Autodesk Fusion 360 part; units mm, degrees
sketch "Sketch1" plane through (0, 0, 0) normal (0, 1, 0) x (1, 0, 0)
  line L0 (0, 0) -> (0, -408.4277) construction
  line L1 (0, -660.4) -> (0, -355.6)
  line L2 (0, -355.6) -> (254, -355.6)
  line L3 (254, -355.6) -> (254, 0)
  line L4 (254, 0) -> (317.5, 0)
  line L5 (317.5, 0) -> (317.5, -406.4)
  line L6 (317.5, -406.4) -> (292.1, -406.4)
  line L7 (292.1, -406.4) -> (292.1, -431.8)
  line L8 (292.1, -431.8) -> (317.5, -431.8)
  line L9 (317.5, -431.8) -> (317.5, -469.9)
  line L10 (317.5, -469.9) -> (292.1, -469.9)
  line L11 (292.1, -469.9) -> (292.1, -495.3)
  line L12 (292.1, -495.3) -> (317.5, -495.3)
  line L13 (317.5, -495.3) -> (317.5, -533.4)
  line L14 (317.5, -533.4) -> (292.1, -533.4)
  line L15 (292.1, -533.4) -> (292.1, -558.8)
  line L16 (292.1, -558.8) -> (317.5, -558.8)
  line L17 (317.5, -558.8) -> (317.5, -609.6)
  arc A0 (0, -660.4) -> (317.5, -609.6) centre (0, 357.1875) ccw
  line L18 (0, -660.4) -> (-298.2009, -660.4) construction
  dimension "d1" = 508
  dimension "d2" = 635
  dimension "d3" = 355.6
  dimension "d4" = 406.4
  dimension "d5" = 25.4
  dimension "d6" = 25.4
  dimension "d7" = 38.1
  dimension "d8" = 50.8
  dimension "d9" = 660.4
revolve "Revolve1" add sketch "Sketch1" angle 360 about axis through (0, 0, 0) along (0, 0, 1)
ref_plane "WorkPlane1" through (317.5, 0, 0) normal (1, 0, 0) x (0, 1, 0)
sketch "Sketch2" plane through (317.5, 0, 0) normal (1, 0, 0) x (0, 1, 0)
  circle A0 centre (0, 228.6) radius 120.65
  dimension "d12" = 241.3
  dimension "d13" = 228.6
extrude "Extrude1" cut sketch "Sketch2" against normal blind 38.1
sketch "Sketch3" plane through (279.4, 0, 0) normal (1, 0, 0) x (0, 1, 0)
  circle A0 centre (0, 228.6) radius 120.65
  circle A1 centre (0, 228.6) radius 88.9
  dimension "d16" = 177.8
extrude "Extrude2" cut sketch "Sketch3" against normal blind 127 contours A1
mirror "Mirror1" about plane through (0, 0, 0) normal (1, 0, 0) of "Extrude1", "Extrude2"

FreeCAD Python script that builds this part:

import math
import FreeCAD as App
import Part
import Sketcher
from FreeCAD import Vector
Q = App.Units.Quantity

doc = App.newDocument("Part")
body = doc.addObject("PartDesign::Body", "Body")

# Sketch on XZ plane
sketch1 = body.newObject("Sketcher::SketchObject", "Sketch")
sketch1.AttachmentSupport = (doc.getObject("XZ_Plane"), [""])
sketch1.MapMode = "FlatFace"
sketch1.addGeometry(Part.LineSegment(Vector(0, 356, 0), Vector(0, 660, 0)), False)
sketch1.addGeometry(Part.ArcOfCircle(Part.Circle(Vector(0, -357, 0), Vector(0, 0, 1), 1018), math.radians(71.82), math.radians(90)), False)
sketch1.addGeometry(Part.LineSegment(Vector(318, 610, 0), Vector(318, 559, 0)), False)
sketch1.addGeometry(Part.LineSegment(Vector(318, 559, 0), Vector(292, 559, 0)), False)
sketch1.addGeometry(Part.LineSegment(Vector(292, 559, 0), Vector(292, 533, 0)), False)
sketch1.addGeometry(Part.LineSegment(Vector(292, 533, 0), Vector(318, 533, 0)), False)
sketch1.addGeometry(Part.LineSegment(Vector(318, 533, 0), Vector(318, 495, 0)), False)
sketch1.addGeometry(Part.LineSegment(Vector(318, 495, 0), Vector(292, 495, 0)), False)
sketch1.addGeometry(Part.LineSegment(Vector(292, 495, 0), Vector(292, 470, 0)), False)
sketch1.addGeometry(Part.LineSegment(Vector(292, 470, 0), Vector(318, 470, 0)), False)
sketch1.addGeometry(Part.LineSegment(Vector(318, 470, 0), Vector(318, 432, 0)), False)
sketch1.addGeometry(Part.LineSegment(Vector(318, 432, 0), Vector(292, 432, 0)), False)
sketch1.addGeometry(Part.LineSegment(Vector(292, 432, 0), Vector(292, 406, 0)), False)
sketch1.addGeometry(Part.LineSegment(Vector(292, 406, 0), Vector(318, 406, 0)), False)
sketch1.addGeometry(Part.LineSegment(Vector(318, 406, 0), Vector(318, 0, 0)), False)
sketch1.addGeometry(Part.LineSegment(Vector(318, 0, 0), Vector(254, 0, 0)), False)
sketch1.addGeometry(Part.LineSegment(Vector(254, 0, 0), Vector(254, 356, 0)), False)
sketch1.addGeometry(Part.LineSegment(Vector(254, 356, 0), Vector(0, 356, 0)), False)
sketch1.addConstraint(Sketcher.Constraint("Coincident", 0, 2, 1, 2))
sketch1.addConstraint(Sketcher.Constraint("Coincident", 1, 1, 2, 1))
sketch1.addConstraint(Sketcher.Constraint("Coincident", 2, 2, 3, 1))
sketch1.addConstraint(Sketcher.Constraint("Coincident", 3, 2, 4, 1))
sketch1.addConstraint(Sketcher.Constraint("Coincident", 4, 2, 5, 1))
sketch1.addConstraint(Sketcher.Constraint("Coincident", 5, 2, 6, 1))
sketch1.addConstraint(Sketcher.Constraint("Coincident", 6, 2, 7, 1))
sketch1.addConstraint(Sketcher.Constraint("Coincident", 7, 2, 8, 1))
sketch1.addConstraint(Sketcher.Constraint("Coincident", 8, 2, 9, 1))
sketch1.addConstraint(Sketcher.Constraint("Coincident", 9, 2, 10, 1))
sketch1.addConstraint(Sketcher.Constraint("Coincident", 10, 2, 11, 1))
sketch1.addConstraint(Sketcher.Constraint("Coincident", 11, 2, 12, 1))
sketch1.addConstraint(Sketcher.Constraint("Coincident", 12, 2, 13, 1))
sketch1.addConstraint(Sketcher.Constraint("Coincident", 13, 2, 14, 1))
sketch1.addConstraint(Sketcher.Constraint("Coincident", 14, 2, 15, 1))
sketch1.addConstraint(Sketcher.Constraint("Coincident", 15, 2, 16, 1))
sketch1.addConstraint(Sketcher.Constraint("Coincident", 16, 2, 17, 1))
sketch1.addConstraint(Sketcher.Constraint("Coincident", 17, 2, 0, 1))
sketch1.addConstraint(Sketcher.Constraint("Vertical", 0))
sketch1.addConstraint(Sketcher.Constraint("Vertical", 2))
sketch1.addConstraint(Sketcher.Constraint("Horizontal", 3))
sketch1.addConstraint(Sketcher.Constraint("Vertical", 4))
sketch1.addConstraint(Sketcher.Constraint("Horizontal", 5))
sketch1.addConstraint(Sketcher.Constraint("Vertical", 6))
sketch1.addConstraint(Sketcher.Constraint("Horizontal", 7))
sketch1.addConstraint(Sketcher.Constraint("Vertical", 8))
sketch1.addConstraint(Sketcher.Constraint("Horizontal", 9))
sketch1.addConstraint(Sketcher.Constraint("Vertical", 10))
sketch1.addConstraint(Sketcher.Constraint("Horizontal", 11))
sketch1.addConstraint(Sketcher.Constraint("Vertical", 12))
sketch1.addConstraint(Sketcher.Constraint("Horizontal", 13))
sketch1.addConstraint(Sketcher.Constraint("Vertical", 14))
sketch1.addConstraint(Sketcher.Constraint("Horizontal", 15))
sketch1.addConstraint(Sketcher.Constraint("Vertical", 16))
sketch1.addConstraint(Sketcher.Constraint("Horizontal", 17))
sketch1.addConstraint(Sketcher.Constraint("PointOnObject", 1, 3, -2))
sketch1.addConstraint(Sketcher.Constraint("PointOnObject", 0, 2, -2))
sketch1.addConstraint(Sketcher.Constraint("PointOnObject", 14, 2, -1))
sketch1.addConstraint(Sketcher.Constraint("Vertical", 2, 2, 5, 2))
sketch1.addConstraint(Sketcher.Constraint("Vertical", 4, 2, 7, 2))
sketch1.addConstraint(Sketcher.Constraint("Vertical", 6, 2, 9, 2))
sketch1.addConstraint(Sketcher.Constraint("Vertical", 8, 2, 11, 2))
sketch1.addConstraint(Sketcher.Constraint("Vertical", 10, 2, 13, 2))
sketch1.addConstraint(Sketcher.Constraint("Equal", 13, 4))
sketch1.addConstraint(Sketcher.Constraint("Equal", 4, 8))
sketch1.addConstraint(Sketcher.Constraint("Equal", 6, 10))
sketch1.addConstraint(Sketcher.Constraint("Equal", 8, 12))
sketch1.addConstraint(Sketcher.Constraint("DistanceX", 3, 2, 3, 1, Q("1 in")))
sketch1.addConstraint(Sketcher.Constraint("DistanceY", 2, 2, 2, 1, Q("2 in")))
sketch1.addConstraint(Sketcher.Constraint("DistanceY", 14, 2, 14, 1, Q("16 in")))
sketch1.addConstraint(Sketcher.Constraint("DistanceY", 16, 1, 16, 2, Q("14 in")))
sketch1.addConstraint(Sketcher.Constraint("DistanceY", 6, 2, 6, 1, Q("1.5 in")))
sketch1.addConstraint(Sketcher.Constraint("DistanceY", -1, 1, 0, 2, Q("26 in")))
sketch1.addConstraint(Sketcher.Constraint("DistanceX", 15, 2, 12, 2, Q("1.5 in")))
sketch1.addConstraint(Sketcher.Constraint("DistanceX", 17, 2, 17, 1, Q("10 in")))
revolution = body.newObject("PartDesign::Revolution", "Revolution")
revolution.Profile = sketch1
revolution.ReferenceAxis = (sketch1, ["V_Axis"])
revolution.Angle = 360

# Sketch on YZ plane
sketch2 = body.newObject("Sketcher::SketchObject", "Sketch001")
sketch2.AttachmentSupport = (doc.getObject("YZ_Plane"), [""])
sketch2.MapMode = "FlatFace"
sketch2.AttachmentOffset = App.Placement(Vector(0, 0, 12.5 * 25.4), App.Rotation())
sketch2.addGeometry(Part.Circle(Vector(0, 229, 0), Vector(0, 0, 1), 121), False)
sketch2.addConstraint(Sketcher.Constraint("PointOnObject", 0, 3, -2))
sketch2.addConstraint(Sketcher.Constraint("Diameter", 0, Q("9.5 in")))
sketch2.addConstraint(Sketcher.Constraint("DistanceY", -1, 1, 0, 3, Q("9 in")))
pocket1 = body.newObject("PartDesign::Pocket", "Pocket")
pocket1.Profile = sketch2
pocket1.Length = Q("1.5 in")

# Sketch on YZ plane
sketch3 = body.newObject("Sketcher::SketchObject", "Sketch002")
sketch3.AttachmentSupport = (doc.getObject("YZ_Plane"), [""])
sketch3.MapMode = "FlatFace"
sketch3.AttachmentOffset = App.Placement(Vector(0, 0, 11 * 25.4), App.Rotation())
sketch3.addGeometry(Part.Circle(Vector(0, 229, 0), Vector(0, 0, 1), 89), False)
sketch3.addConstraint(Sketcher.Constraint("PointOnObject", 0, 3, -2))
sketch3.addConstraint(Sketcher.Constraint("Diameter", 0, Q("7 in")))
sketch3.addConstraint(Sketcher.Constraint("DistanceY", -1, 1, 0, 3, Q("9 in")))
pocket2 = body.newObject("PartDesign::Pocket", "Pocket001")
pocket2.Profile = sketch3
pocket2.Length = Q("5 in")
doc.recompute()

mirrored = body.newObject("PartDesign::Mirrored", "Mirrored")
mirrored.Originals = [pocket1, pocket2]
mirrored.MirrorPlane = (doc.getObject("YZ_Plane"), [""])
body.Tip = mirrored

doc.recompute()
